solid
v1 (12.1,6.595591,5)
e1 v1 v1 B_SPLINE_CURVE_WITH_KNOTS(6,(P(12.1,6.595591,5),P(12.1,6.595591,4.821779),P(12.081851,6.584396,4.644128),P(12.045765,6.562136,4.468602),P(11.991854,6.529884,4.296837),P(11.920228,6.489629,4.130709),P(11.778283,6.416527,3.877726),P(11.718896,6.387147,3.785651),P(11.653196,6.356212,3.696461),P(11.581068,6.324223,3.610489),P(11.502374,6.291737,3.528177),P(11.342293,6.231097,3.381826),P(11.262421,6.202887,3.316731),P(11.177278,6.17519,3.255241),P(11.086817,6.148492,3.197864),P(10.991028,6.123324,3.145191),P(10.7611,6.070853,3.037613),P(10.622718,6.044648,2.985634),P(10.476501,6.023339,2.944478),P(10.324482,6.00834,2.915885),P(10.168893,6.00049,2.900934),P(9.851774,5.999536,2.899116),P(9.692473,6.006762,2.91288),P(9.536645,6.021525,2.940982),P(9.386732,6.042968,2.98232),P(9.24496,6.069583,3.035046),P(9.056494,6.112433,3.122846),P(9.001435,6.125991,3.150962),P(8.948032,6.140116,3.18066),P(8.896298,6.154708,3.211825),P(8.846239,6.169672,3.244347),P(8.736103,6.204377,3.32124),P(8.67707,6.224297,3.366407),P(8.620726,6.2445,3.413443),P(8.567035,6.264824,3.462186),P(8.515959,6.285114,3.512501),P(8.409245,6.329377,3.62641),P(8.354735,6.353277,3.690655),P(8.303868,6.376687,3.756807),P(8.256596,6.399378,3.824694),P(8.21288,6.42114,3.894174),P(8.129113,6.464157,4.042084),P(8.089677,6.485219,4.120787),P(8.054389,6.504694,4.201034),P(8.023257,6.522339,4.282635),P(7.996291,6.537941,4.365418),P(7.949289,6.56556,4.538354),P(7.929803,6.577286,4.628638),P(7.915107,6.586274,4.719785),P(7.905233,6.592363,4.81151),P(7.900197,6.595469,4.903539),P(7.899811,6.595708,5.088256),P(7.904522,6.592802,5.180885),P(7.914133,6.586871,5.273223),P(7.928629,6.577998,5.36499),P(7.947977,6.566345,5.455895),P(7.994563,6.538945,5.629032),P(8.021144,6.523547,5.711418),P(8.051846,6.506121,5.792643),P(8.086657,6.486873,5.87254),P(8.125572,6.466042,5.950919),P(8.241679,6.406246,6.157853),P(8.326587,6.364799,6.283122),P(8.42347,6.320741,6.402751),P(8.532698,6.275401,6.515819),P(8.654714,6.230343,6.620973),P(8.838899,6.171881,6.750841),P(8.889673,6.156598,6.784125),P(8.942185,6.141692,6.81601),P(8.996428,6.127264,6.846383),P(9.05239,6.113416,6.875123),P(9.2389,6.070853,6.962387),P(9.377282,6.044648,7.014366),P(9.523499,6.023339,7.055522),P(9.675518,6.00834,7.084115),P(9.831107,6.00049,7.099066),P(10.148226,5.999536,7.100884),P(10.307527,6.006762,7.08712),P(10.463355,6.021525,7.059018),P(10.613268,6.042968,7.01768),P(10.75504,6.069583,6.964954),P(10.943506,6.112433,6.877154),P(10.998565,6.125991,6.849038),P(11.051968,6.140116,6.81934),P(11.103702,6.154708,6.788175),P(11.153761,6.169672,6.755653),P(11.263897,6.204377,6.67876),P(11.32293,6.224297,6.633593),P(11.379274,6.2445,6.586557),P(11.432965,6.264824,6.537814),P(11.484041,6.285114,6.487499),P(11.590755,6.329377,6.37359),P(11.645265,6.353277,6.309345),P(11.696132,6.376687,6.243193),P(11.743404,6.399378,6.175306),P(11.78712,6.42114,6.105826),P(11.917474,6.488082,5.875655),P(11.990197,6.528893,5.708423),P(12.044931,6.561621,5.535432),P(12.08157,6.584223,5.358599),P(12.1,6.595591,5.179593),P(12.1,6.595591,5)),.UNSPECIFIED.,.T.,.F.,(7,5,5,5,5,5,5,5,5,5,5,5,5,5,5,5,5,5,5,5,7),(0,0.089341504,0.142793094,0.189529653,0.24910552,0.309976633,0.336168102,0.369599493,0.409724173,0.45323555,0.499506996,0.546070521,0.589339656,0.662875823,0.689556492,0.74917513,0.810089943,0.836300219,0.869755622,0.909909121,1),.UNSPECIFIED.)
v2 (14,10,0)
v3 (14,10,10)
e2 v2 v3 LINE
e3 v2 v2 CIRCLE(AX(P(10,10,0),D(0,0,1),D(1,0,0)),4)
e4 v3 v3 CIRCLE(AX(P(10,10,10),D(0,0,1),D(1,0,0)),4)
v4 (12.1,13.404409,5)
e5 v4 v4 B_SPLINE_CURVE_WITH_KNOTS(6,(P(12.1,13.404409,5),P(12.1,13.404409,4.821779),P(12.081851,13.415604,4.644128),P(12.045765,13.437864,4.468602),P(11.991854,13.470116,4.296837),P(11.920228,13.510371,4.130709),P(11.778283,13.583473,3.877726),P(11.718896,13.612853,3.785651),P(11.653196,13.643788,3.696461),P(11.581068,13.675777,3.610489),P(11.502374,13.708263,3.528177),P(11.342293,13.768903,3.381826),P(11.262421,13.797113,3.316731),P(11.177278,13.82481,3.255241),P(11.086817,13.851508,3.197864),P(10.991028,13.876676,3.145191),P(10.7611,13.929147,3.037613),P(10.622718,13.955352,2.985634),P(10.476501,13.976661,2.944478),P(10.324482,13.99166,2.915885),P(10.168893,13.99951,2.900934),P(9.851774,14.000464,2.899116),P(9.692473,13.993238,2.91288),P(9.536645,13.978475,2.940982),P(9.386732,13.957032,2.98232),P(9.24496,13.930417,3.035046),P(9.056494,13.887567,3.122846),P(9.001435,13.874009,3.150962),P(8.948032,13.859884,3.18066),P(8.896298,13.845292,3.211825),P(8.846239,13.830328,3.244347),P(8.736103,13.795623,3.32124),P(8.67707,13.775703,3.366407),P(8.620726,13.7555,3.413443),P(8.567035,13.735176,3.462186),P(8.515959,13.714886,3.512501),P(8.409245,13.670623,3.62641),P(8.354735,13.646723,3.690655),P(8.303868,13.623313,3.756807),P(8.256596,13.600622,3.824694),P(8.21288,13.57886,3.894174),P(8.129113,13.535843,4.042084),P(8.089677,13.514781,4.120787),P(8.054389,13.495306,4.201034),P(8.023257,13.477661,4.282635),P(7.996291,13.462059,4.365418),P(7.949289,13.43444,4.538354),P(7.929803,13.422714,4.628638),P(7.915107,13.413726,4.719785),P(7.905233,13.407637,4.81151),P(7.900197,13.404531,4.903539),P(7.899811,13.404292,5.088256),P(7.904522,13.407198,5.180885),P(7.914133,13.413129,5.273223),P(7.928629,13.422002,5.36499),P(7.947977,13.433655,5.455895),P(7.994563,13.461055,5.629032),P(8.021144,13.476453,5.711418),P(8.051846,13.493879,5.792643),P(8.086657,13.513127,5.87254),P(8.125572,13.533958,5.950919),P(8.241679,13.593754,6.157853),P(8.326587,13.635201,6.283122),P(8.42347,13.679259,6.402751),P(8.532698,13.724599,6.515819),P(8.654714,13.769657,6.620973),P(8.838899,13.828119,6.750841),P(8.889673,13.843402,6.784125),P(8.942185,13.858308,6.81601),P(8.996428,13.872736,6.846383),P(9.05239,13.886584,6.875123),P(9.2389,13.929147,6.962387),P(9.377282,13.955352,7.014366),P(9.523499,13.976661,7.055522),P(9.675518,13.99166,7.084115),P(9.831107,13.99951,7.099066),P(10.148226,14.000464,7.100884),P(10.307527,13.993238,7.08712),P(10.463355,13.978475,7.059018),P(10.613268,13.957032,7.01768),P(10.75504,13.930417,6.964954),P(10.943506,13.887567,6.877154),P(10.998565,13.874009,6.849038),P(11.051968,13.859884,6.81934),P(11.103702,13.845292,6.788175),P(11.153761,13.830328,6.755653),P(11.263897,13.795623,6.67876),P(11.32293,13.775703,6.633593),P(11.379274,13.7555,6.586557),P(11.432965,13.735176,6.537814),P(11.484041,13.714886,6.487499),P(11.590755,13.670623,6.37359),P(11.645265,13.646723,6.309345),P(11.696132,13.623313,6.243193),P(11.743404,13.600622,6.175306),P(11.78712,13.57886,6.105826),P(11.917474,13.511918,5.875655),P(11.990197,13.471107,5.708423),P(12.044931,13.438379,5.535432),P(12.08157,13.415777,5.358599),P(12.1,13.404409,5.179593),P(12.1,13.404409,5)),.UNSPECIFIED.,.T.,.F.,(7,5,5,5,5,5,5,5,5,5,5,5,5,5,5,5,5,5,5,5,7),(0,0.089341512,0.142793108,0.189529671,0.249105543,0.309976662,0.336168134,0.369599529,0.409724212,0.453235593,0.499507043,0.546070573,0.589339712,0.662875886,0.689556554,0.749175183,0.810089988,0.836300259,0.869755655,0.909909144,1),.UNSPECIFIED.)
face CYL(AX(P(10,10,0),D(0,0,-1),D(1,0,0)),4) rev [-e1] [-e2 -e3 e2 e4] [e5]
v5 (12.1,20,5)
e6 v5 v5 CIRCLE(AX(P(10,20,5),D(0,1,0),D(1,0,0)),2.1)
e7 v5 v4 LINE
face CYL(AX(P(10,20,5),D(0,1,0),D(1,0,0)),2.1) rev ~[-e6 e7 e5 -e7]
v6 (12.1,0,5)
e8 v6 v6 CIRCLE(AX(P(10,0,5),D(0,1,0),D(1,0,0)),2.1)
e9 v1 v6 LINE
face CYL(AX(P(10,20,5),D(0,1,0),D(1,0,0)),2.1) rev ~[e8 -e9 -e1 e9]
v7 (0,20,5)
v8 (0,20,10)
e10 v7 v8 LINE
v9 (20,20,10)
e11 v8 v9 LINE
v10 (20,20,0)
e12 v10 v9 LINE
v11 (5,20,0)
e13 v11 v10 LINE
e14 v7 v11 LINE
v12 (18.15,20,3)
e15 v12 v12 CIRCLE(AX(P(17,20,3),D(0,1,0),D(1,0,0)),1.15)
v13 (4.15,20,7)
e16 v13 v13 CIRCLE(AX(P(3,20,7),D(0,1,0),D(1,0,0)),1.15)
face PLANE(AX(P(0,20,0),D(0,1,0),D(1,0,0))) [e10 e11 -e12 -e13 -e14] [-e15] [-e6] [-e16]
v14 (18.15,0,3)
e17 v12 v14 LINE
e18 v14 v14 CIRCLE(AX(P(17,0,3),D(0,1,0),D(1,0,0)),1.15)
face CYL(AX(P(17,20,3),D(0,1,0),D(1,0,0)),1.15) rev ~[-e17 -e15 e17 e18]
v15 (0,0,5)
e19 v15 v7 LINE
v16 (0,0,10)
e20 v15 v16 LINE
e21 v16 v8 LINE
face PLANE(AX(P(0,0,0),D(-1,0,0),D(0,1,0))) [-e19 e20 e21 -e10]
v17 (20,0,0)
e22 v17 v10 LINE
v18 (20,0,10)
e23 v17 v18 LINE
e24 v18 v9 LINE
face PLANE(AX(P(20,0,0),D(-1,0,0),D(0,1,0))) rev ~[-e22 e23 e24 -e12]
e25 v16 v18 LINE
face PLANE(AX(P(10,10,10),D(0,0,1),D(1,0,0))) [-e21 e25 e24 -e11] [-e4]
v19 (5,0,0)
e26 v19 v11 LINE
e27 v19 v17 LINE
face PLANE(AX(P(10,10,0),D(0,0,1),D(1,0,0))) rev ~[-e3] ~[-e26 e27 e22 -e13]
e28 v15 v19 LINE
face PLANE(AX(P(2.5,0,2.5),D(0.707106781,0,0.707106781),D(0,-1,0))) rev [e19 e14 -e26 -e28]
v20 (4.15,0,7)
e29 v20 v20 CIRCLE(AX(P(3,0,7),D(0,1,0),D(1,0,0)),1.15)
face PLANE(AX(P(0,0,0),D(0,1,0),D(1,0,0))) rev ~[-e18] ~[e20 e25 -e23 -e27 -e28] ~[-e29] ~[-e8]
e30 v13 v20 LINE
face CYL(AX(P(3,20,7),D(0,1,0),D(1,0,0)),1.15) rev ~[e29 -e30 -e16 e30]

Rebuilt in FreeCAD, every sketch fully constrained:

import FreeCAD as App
import Part
import Sketcher
Q = App.Units.Quantity


def edges_at(feature, points):
    """Names of the edges that pass closest to the given points."""
    edges = feature.Shape.Edges
    near = lambda p: min(range(len(edges)), key=lambda i: edges[i].distToShape(Part.Vertex(*p))[0])
    return sorted({f"Edge{near(p) + 1}" for p in points})

doc = App.newDocument("Part")
body = doc.addObject("PartDesign::Body", "Body")

sketch1 = body.newObject("Sketcher::SketchObject", "Sketch")
sketch1.AttachmentSupport = (doc.getObject("XY_Plane"), [""])
sketch1.MapMode = "FlatFace"
sketch1.addGeometry([
    Part.LineSegment(App.Vector(0, 20, 0), App.Vector(0, 0, 0)),
    Part.LineSegment(App.Vector(0, 0, 0), App.Vector(20, 0, 0)),
    Part.LineSegment(App.Vector(20, 0, 0), App.Vector(20, 20, 0)),
    Part.LineSegment(App.Vector(20, 20, 0), App.Vector(0, 20, 0)),
    Part.Circle(App.Vector(10, 10, 0), App.Vector(0, 0, 1), 4),
], False)
sketch1.addConstraint([
    Sketcher.Constraint("Coincident", 0, 2, 1, 1),
    Sketcher.Constraint("Coincident", 1, 2, 2, 1),
    Sketcher.Constraint("Coincident", 2, 2, 3, 1),
    Sketcher.Constraint("Coincident", 3, 2, 0, 1),
    Sketcher.Constraint("Vertical", 0),
    Sketcher.Constraint("Horizontal", 1),
    Sketcher.Constraint("Vertical", 2),
    Sketcher.Constraint("Horizontal", 3),
    Sketcher.Constraint("Coincident", 0, 2, -1, 1),
    Sketcher.Constraint("Equal", 3, 0),
    Sketcher.Constraint("Diameter", 4, Q("8 mm")),
    Sketcher.Constraint("DistanceX", 1, 1, 1, 2, Q("20 mm")),
    Sketcher.Constraint("DistanceX", -1, 1, 4, 3, Q("10 mm")),
    Sketcher.Constraint("DistanceY", -1, 1, 4, 3, Q("10 mm")),
])
pad1 = body.newObject("PartDesign::Pad", "Pad")
pad1.Profile = sketch1
pad1.Length = 10

sketch2 = body.newObject("Sketcher::SketchObject", "Sketch001")
sketch2.AttachmentSupport = (doc.getObject("XZ_Plane"), [""])
sketch2.MapMode = "FlatFace"
sketch2.AttachmentOffset = App.Placement(App.Vector(0, 0, -20), App.Rotation())
sketch2.addGeometry([
    Part.Circle(App.Vector(3, 7, 0), App.Vector(0, 0, 1), 1.1),
    Part.Circle(App.Vector(17, 3, 0), App.Vector(0, 0, 1), 1.1),
    Part.Circle(App.Vector(10, 5, 0), App.Vector(0, 0, 1), 2.1),
], False)
sketch2.addConstraint([
    Sketcher.Constraint("Equal", 0, 1),
    Sketcher.Constraint("Diameter", 0, Q("2.3 mm")),
    Sketcher.Constraint("Diameter", 2, Q("4.2 mm")),
    Sketcher.Constraint("DistanceX", -1, 1, 0, 3, Q("3 mm")),
    Sketcher.Constraint("DistanceY", -1, 1, 0, 3, Q("7 mm")),
    Sketcher.Constraint("DistanceX", -1, 1, 1, 3, Q("17 mm")),
    Sketcher.Constraint("DistanceY", -1, 1, 1, 3, Q("3 mm")),
    Sketcher.Constraint("DistanceX", -1, 1, 2, 3, Q("10 mm")),
    Sketcher.Constraint("DistanceY", -1, 1, 2, 3, Q("5 mm")),
])
pocket1 = body.newObject("PartDesign::Pocket", "Pocket")
pocket1.Profile = sketch2
pocket1.Type = "ThroughAll"
pocket1.Reversed = True
doc.recompute()

chamfer = body.newObject("PartDesign::Chamfer", "Chamfer")
chamfer.Base = (pocket1, edges_at(pocket1, [(0, 10, 0)]))
chamfer.Size = 5

doc.recompute()
